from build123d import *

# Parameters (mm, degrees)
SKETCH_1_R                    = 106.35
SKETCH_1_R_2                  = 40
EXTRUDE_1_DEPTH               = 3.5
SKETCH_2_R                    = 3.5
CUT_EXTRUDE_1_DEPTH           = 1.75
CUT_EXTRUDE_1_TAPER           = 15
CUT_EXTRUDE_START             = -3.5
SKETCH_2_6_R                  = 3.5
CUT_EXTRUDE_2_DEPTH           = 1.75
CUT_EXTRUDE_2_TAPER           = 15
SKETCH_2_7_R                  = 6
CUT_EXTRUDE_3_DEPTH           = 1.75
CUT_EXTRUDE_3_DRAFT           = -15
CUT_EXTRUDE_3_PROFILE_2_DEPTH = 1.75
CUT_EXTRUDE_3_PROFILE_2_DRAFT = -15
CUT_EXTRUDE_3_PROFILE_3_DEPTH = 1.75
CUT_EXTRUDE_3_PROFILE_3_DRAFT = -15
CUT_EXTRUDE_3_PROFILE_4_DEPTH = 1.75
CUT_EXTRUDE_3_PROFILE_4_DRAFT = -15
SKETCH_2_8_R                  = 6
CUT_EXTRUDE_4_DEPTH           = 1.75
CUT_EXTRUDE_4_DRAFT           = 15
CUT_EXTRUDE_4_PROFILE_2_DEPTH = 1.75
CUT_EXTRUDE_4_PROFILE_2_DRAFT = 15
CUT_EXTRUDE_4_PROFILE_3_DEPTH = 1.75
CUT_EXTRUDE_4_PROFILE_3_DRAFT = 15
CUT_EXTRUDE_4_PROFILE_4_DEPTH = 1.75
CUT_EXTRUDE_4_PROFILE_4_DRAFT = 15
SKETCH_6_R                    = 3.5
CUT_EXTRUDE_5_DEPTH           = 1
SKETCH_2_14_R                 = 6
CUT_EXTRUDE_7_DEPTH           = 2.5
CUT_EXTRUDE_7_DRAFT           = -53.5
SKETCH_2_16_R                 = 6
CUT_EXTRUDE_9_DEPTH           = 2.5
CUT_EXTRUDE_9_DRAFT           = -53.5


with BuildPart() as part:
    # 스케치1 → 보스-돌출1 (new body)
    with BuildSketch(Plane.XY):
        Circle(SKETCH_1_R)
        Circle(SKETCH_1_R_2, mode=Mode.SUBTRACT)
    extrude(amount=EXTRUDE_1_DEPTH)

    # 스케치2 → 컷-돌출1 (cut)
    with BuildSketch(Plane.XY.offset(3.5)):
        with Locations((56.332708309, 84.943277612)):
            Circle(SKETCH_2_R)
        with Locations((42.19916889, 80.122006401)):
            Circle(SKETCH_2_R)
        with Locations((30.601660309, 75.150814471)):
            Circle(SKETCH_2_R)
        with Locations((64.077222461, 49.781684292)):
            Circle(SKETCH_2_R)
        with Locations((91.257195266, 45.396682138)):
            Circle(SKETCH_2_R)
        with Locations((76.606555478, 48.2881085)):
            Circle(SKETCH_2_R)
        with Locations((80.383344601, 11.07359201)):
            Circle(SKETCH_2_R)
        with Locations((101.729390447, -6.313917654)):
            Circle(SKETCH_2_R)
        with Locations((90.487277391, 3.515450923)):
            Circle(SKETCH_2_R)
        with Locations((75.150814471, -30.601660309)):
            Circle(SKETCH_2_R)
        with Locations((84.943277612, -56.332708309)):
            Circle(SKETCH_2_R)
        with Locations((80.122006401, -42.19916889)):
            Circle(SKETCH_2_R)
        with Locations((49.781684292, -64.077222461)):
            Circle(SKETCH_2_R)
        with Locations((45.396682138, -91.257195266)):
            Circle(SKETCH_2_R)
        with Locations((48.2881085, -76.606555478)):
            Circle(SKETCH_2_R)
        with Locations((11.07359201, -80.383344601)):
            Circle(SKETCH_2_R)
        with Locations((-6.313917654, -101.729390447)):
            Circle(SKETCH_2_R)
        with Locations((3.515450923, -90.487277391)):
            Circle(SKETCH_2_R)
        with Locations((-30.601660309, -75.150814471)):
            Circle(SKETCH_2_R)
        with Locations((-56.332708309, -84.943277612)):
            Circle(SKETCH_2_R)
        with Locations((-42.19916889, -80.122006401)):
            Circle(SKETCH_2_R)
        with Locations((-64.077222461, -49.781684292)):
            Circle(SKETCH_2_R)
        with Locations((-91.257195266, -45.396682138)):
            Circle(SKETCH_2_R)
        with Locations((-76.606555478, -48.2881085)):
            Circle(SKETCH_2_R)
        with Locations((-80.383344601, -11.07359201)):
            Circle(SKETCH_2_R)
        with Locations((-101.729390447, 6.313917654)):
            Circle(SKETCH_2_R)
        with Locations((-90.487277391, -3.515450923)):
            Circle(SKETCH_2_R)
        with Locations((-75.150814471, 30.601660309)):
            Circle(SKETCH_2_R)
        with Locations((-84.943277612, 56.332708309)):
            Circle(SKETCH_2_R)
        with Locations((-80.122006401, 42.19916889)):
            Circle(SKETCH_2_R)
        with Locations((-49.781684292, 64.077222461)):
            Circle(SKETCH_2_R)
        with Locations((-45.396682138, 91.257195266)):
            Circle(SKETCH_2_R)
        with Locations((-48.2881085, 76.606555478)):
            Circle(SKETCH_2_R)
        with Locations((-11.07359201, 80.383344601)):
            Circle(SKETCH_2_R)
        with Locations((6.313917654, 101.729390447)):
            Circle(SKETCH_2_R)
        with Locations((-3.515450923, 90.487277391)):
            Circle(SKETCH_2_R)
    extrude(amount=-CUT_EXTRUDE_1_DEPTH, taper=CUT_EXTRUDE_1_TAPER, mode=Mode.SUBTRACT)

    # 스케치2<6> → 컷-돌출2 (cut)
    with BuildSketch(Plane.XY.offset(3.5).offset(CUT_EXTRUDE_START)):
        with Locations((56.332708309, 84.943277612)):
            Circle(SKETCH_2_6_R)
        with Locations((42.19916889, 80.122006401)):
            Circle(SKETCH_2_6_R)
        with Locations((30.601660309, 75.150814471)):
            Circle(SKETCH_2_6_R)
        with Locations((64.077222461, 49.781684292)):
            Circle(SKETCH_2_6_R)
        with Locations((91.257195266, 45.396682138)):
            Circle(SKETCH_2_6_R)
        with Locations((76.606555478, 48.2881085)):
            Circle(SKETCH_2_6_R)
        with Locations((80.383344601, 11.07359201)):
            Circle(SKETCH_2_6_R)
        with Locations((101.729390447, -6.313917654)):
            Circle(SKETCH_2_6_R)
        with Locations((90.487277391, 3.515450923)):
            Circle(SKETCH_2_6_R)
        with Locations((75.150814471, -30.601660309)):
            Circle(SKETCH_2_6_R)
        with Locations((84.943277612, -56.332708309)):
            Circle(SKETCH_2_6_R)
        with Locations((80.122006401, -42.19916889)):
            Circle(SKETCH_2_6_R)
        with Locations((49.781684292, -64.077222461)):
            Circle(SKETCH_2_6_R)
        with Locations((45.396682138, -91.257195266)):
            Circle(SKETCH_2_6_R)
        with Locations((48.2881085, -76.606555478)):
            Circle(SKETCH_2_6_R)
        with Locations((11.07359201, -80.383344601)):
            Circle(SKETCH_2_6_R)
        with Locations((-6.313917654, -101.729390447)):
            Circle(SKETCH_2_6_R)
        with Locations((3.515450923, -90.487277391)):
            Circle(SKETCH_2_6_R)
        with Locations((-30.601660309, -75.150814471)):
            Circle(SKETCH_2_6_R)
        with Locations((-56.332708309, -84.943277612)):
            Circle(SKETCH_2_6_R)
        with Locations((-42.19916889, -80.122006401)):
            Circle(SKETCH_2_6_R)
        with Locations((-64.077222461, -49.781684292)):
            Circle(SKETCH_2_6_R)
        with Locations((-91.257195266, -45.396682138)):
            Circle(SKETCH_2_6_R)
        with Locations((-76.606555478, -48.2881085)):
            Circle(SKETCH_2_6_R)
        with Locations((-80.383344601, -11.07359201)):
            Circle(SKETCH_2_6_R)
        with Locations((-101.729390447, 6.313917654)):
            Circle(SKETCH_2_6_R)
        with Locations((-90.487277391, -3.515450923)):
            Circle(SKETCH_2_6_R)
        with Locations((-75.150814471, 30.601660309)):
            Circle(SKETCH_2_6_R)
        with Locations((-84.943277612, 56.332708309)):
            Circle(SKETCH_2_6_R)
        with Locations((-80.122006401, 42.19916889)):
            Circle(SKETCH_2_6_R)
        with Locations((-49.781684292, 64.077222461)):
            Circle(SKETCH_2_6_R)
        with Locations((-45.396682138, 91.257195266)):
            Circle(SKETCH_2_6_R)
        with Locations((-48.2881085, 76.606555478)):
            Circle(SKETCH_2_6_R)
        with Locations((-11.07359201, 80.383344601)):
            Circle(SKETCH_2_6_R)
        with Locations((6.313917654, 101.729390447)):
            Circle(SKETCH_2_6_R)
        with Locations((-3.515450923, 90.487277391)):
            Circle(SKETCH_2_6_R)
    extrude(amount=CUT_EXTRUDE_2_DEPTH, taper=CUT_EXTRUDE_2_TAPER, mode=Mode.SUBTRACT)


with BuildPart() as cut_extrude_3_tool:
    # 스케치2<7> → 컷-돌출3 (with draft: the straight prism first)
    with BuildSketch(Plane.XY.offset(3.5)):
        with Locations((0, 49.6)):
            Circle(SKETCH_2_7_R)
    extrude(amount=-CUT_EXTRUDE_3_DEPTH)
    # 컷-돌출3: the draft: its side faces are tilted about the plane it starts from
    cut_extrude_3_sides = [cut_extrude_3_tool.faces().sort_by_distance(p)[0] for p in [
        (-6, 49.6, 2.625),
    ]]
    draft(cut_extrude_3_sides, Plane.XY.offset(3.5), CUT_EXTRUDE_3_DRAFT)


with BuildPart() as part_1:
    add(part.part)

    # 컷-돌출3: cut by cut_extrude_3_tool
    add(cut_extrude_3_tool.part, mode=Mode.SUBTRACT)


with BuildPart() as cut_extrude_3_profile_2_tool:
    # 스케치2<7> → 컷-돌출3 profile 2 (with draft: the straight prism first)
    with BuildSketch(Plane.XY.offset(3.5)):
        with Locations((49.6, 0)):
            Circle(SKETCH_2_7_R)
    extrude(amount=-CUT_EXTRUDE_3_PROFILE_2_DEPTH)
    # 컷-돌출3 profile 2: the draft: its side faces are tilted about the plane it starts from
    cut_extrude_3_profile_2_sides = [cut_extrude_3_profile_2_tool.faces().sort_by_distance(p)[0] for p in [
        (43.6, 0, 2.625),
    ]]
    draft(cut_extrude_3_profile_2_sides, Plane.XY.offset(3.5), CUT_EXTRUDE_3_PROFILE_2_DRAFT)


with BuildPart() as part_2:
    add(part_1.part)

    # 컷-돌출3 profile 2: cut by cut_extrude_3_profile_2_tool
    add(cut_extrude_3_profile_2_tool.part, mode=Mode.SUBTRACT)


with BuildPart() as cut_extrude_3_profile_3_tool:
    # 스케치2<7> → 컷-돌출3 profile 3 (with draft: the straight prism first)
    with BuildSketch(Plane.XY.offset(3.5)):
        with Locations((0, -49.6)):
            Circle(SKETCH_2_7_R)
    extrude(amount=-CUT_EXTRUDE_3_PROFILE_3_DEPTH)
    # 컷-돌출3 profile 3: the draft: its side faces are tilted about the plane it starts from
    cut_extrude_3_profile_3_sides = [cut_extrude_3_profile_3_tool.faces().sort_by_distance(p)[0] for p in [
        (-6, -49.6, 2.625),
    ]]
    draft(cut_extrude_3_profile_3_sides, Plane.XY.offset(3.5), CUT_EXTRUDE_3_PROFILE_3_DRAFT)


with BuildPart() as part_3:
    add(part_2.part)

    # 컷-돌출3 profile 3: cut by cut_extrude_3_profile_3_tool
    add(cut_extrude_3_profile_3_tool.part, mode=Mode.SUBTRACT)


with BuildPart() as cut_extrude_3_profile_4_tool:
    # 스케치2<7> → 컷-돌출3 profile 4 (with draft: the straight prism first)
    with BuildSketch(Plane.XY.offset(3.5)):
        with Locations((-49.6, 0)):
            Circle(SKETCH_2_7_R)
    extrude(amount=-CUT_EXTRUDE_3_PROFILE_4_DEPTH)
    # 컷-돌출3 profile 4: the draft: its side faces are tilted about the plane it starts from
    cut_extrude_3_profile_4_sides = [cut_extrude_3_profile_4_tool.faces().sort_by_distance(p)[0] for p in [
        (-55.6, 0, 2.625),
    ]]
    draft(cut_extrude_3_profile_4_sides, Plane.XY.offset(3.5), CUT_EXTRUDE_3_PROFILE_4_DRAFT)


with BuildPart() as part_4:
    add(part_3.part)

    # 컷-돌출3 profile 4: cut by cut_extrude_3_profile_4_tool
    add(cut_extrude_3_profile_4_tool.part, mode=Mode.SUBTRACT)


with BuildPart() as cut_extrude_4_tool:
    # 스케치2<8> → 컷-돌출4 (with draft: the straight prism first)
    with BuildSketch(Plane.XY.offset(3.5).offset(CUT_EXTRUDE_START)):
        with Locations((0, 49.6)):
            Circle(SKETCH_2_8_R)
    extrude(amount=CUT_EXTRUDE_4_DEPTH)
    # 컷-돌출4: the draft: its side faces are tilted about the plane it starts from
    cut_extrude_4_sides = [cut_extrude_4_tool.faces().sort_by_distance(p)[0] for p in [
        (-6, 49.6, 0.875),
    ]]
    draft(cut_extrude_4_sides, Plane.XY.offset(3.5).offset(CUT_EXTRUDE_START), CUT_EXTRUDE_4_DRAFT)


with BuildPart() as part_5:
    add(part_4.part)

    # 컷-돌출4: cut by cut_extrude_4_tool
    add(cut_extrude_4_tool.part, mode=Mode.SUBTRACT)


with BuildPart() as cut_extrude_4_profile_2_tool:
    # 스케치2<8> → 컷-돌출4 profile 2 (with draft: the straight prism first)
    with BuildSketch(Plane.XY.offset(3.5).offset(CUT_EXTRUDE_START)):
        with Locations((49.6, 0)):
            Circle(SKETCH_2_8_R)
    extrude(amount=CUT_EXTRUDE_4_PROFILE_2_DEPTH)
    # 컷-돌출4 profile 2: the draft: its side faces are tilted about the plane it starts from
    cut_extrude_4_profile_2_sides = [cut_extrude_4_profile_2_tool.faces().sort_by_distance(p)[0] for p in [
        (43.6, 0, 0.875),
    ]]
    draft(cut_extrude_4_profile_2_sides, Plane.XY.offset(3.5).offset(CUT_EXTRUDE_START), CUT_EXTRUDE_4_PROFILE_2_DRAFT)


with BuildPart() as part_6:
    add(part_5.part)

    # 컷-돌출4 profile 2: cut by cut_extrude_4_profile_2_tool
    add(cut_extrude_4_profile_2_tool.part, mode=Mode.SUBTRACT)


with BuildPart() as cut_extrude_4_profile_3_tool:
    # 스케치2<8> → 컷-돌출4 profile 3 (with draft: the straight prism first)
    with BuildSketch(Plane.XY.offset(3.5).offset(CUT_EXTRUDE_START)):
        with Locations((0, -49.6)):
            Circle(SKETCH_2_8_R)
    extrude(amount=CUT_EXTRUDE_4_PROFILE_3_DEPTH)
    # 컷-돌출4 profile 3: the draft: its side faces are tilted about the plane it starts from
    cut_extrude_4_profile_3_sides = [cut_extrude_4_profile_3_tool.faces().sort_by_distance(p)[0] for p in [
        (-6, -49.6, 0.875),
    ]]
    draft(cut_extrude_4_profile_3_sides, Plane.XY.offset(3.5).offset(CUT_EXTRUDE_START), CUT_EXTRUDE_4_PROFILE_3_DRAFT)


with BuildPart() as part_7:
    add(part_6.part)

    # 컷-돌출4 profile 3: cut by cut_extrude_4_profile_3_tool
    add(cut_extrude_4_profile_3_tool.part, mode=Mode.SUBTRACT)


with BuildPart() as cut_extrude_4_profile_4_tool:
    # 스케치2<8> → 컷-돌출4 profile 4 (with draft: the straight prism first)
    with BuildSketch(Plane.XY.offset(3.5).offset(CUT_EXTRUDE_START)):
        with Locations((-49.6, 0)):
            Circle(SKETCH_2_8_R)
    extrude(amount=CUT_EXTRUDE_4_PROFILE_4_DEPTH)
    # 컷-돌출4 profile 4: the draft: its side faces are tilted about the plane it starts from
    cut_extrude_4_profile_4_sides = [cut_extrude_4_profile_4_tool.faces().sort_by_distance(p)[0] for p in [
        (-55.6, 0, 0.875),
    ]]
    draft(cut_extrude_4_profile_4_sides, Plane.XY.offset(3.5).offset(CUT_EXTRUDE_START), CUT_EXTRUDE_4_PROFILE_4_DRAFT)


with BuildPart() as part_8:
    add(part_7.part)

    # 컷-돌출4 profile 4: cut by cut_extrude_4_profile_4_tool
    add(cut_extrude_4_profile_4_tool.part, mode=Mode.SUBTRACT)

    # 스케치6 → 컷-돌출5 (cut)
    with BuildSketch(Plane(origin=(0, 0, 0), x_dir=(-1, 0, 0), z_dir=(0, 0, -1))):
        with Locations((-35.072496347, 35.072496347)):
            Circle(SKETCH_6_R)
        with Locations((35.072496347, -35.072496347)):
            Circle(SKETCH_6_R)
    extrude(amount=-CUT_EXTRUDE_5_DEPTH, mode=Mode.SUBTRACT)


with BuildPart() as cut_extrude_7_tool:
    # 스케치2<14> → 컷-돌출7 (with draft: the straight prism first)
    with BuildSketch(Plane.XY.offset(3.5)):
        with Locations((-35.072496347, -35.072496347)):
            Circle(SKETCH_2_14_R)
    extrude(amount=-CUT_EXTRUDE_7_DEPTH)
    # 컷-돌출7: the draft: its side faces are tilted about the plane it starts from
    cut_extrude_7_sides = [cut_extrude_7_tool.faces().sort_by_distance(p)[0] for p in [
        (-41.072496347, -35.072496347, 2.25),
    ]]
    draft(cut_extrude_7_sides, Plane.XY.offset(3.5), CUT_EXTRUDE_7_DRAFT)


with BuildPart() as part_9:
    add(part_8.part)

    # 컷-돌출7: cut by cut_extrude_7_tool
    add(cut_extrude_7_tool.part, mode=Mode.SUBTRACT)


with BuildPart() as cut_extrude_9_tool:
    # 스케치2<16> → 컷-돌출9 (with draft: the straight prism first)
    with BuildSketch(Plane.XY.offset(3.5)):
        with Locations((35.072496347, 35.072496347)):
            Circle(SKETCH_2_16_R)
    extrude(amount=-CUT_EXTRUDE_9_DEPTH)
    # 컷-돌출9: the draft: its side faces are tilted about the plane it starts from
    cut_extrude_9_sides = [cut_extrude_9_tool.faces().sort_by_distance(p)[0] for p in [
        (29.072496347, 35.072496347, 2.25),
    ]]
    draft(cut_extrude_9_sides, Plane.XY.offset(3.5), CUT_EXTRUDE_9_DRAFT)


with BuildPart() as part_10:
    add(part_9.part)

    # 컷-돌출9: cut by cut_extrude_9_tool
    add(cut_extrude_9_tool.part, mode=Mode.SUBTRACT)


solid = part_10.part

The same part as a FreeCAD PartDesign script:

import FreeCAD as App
import Part
import Sketcher

V = App.Vector
Q = App.Units.Quantity


def faces_at(feature, points):
    """Names of the faces that lie closest to the given points."""
    faces = feature.Shape.Faces
    near = lambda p: min(range(len(faces)), key=lambda i: faces[i].distToShape(Part.Vertex(*p))[0])
    return sorted({f"Face{near(p) + 1}" for p in points})

doc = App.newDocument("Part")
body = doc.addObject("PartDesign::Body", "Body")

sketch1 = doc.addObject("Sketcher::SketchObject", "Sketch")
body.addObject(sketch1)
sketch1.AttachmentSupport = (doc.XY_Plane, [""])
sketch1.MapMode = "FlatFace"
sketch1.addGeometry([
    Part.Circle(V(0, 0, 0), V(0, 0, 1), 106),
    Part.Circle(V(0, 0, 0), V(0, 0, 1), 40),
], False)
sketch1.addConstraint([
    Sketcher.Constraint("Coincident", 0, 3, -1, 1),
    Sketcher.Constraint("Coincident", 1, 3, -1, 1),
    Sketcher.Constraint("Diameter", 1, Q("80 mm")),
    Sketcher.Constraint("Diameter", 0, Q("212.7 mm")),
])
pad1 = doc.addObject("PartDesign::Pad", "Pad")
body.addObject(pad1)
pad1.Profile = sketch1
pad1.Length = 3.5

sketch2 = doc.addObject("Sketcher::SketchObject", "Sketch001")
body.addObject(sketch2)
sketch2.AttachmentSupport = (doc.XY_Plane, [""])
sketch2.MapMode = "FlatFace"
sketch2.AttachmentOffset = App.Placement(V(0, 0, 3.5), App.Rotation())
sketch2.addGeometry([
    Part.Circle(V(56.3, 84.9, 0), V(0, 0, 1), 3.5),
    Part.Circle(V(42.2, 80.1, 0), V(0, 0, 1), 3.5),
    Part.Circle(V(30.6, 75.2, 0), V(0, 0, 1), 3.5),
    Part.Circle(V(64.1, 49.8, 0), V(0, 0, 1), 3.5),
    Part.Circle(V(91.3, 45.4, 0), V(0, 0, 1), 3.5),
    Part.Circle(V(76.6, 48.3, 0), V(0, 0, 1), 3.5),
    Part.Circle(V(80.4, 11.1, 0), V(0, 0, 1), 3.5),
    Part.Circle(V(101.7, -6.3, 0), V(0, 0, 1), 3.5),
    Part.Circle(V(90.5, 3.5, 0), V(0, 0, 1), 3.5),
    Part.Circle(V(75.2, -30.6, 0), V(0, 0, 1), 3.5),
    Part.Circle(V(84.9, -56.3, 0), V(0, 0, 1), 3.5),
    Part.Circle(V(80.1, -42.2, 0), V(0, 0, 1), 3.5),
    Part.Circle(V(49.8, -64.1, 0), V(0, 0, 1), 3.5),
    Part.Circle(V(45.4, -91.3, 0), V(0, 0, 1), 3.5),
    Part.Circle(V(48.3, -76.6, 0), V(0, 0, 1), 3.5),
    Part.Circle(V(11.1, -80.4, 0), V(0, 0, 1), 3.5),
    Part.Circle(V(-6.3, -101.7, 0), V(0, 0, 1), 3.5),
    Part.Circle(V(3.5, -90.5, 0), V(0, 0, 1), 3.5),
    Part.Circle(V(-30.6, -75.2, 0), V(0, 0, 1), 3.5),
    Part.Circle(V(-56.3, -84.9, 0), V(0, 0, 1), 3.5),
    Part.Circle(V(-42.2, -80.1, 0), V(0, 0, 1), 3.5),
    Part.Circle(V(-64.1, -49.8, 0), V(0, 0, 1), 3.5),
    Part.Circle(V(-91.3, -45.4, 0), V(0, 0, 1), 3.5),
    Part.Circle(V(-76.6, -48.3, 0), V(0, 0, 1), 3.5),
    Part.Circle(V(-80.4, -11.1, 0), V(0, 0, 1), 3.5),
    Part.Circle(V(-101.7, 6.3, 0), V(0, 0, 1), 3.5),
    Part.Circle(V(-90.5, -3.5, 0), V(0, 0, 1), 3.5),
    Part.Circle(V(-75.2, 30.6, 0), V(0, 0, 1), 3.5),
    Part.Circle(V(-84.9, 56.3, 0), V(0, 0, 1), 3.5),
    Part.Circle(V(-80.1, 42.2, 0), V(0, 0, 1), 3.5),
    Part.Circle(V(-49.8, 64.1, 0), V(0, 0, 1), 3.5),
    Part.Circle(V(-45.4, 91.3, 0), V(0, 0, 1), 3.5),
    Part.Circle(V(-48.3, 76.6, 0), V(0, 0, 1), 3.5),
    Part.Circle(V(-11.1, 80.4, 0), V(0, 0, 1), 3.5),
    Part.Circle(V(6.3, 101.7, 0), V(0, 0, 1), 3.5),
    Part.Circle(V(-3.5, 90.5, 0), V(0, 0, 1), 3.5),
], False)
sketch2.addConstraint([
    Sketcher.Constraint("Equal", 0, 1),
    Sketcher.Constraint("Equal", 1, 2),
    Sketcher.Constraint("Equal", 2, 3),
    Sketcher.Constraint("Equal", 3, 4),
    Sketcher.Constraint("Equal", 4, 5),
    Sketcher.Constraint("Equal", 5, 6),
    Sketcher.Constraint("Equal", 6, 7),
    Sketcher.Constraint("Equal", 7, 8),
    Sketcher.Constraint("Equal", 8, 9),
    Sketcher.Constraint("Equal", 9, 10),
    Sketcher.Constraint("Equal", 10, 11),
    Sketcher.Constraint("Equal", 11, 12),
    Sketcher.Constraint("Equal", 12, 13),
    Sketcher.Constraint("Equal", 13, 14),
    Sketcher.Constraint("Equal", 14, 15),
    Sketcher.Constraint("Equal", 15, 16),
    Sketcher.Constraint("Equal", 16, 17),
    Sketcher.Constraint("Equal", 17, 18),
    Sketcher.Constraint("Equal", 18, 19),
    Sketcher.Constraint("Equal", 19, 20),
    Sketcher.Constraint("Equal", 20, 21),
    Sketcher.Constraint("Equal", 21, 22),
    Sketcher.Constraint("Equal", 22, 23),
    Sketcher.Constraint("Equal", 23, 24),
    Sketcher.Constraint("Equal", 24, 25),
    Sketcher.Constraint("Equal", 25, 26),
    Sketcher.Constraint("Equal", 26, 27),
    Sketcher.Constraint("Equal", 27, 28),
    Sketcher.Constraint("Equal", 28, 29),
    Sketcher.Constraint("Equal", 29, 30),
    Sketcher.Constraint("Equal", 30, 31),
    Sketcher.Constraint("Equal", 31, 32),
    Sketcher.Constraint("Equal", 32, 33),
    Sketcher.Constraint("Equal", 33, 34),
    Sketcher.Constraint("Equal", 34, 35),
    Sketcher.Constraint("Symmetric", 2, 3, 18, 3, -1, 1),
    Sketcher.Constraint("Symmetric", 0, 3, 19, 3, -1, 1),
    Sketcher.Constraint("Symmetric", 1, 3, 20, 3, -1, 1),
    Sketcher.Constraint("Symmetric", 3, 3, 21, 3, -1, 1),
    Sketcher.Constraint("Symmetric", 4, 3, 22, 3, -1, 1),
    Sketcher.Constraint("Symmetric", 5, 3, 23, 3, -1, 1),
    Sketcher.Constraint("Symmetric", 6, 3, 24, 3, -1, 1),
    Sketcher.Constraint("Symmetric", 7, 3, 25, 3, -1, 1),
    Sketcher.Constraint("Symmetric", 8, 3, 26, 3, -1, 1),
    Sketcher.Constraint("Symmetric", 9, 3, 27, 3, -1, 1),
    Sketcher.Constraint("Symmetric", 10, 3, 28, 3, -1, 1),
    Sketcher.Constraint("Symmetric", 11, 3, 29, 3, -1, 1),
    Sketcher.Constraint("Symmetric", 12, 3, 30, 3, -1, 1),
    Sketcher.Constraint("Symmetric", 13, 3, 31, 3, -1, 1),
    Sketcher.Constraint("Symmetric", 14, 3, 32, 3, -1, 1),
    Sketcher.Constraint("Symmetric", 15, 3, 33, 3, -1, 1),
    Sketcher.Constraint("Symmetric", 16, 3, 34, 3, -1, 1),
    Sketcher.Constraint("Symmetric", 17, 3, 35, 3, -1, 1),
    Sketcher.Constraint("Diameter", 0, Q("7 mm")),
    Sketcher.Constraint("DistanceX", 10, 3, 8, 3, Q("5.544 mm")),
    Sketcher.Constraint("DistanceY", 17, 3, 19, 3, Q("5.544 mm")),
    Sketcher.Constraint("DistanceY", 7, 3, 4, 3, Q("51.7106 mm")),
    Sketcher.Constraint("DistanceY", 7, 3, 3, 3, Q("56.095602 mm")),
    Sketcher.Constraint("DistanceY", 10, 3, 6, 3, Q("67.4063 mm")),
    Sketcher.Constraint("DistanceX", 16, 3, 13, 3, Q("51.7106 mm")),
    Sketcher.Constraint("DistanceX", 16, 3, 12, 3, Q("56.095602 mm")),
    Sketcher.Constraint("DistanceX", 19, 3, 15, 3, Q("67.4063 mm")),
    Sketcher.Constraint("DistanceX", -1, 1, 0, 3, Q("56.332708 mm")),
    Sketcher.Constraint("DistanceX", -1, 1, 1, 3, Q("42.199169 mm")),
    Sketcher.Constraint("DistanceX", -1, 1, 2, 3, Q("30.60166 mm")),
    Sketcher.Constraint("DistanceY", -1, 1, 5, 3, Q("48.288108 mm")),
    Sketcher.Constraint("DistanceX", -1, 1, 7, 3, Q("101.72939 mm")),
    Sketcher.Constraint("DistanceY", -1, 1, 8, 3, Q("3.515451 mm")),
    Sketcher.Constraint("DistanceY", 9, 3, -1, 1, Q("30.60166 mm")),
    Sketcher.Constraint("DistanceY", 10, 3, -1, 1, Q("56.332708 mm")),
    Sketcher.Constraint("DistanceY", 11, 3, -1, 1, Q("42.199169 mm")),
    Sketcher.Constraint("DistanceX", -1, 1, 14, 3, Q("48.288108 mm")),
    Sketcher.Constraint("DistanceY", 16, 3, -1, 1, Q("101.72939 mm")),
    Sketcher.Constraint("DistanceX", -1, 1, 17, 3, Q("3.515451 mm")),
    Sketcher.Constraint("DistanceY", 1, 3, 0, 3, Q("4.821271 mm")),
    Sketcher.Constraint("DistanceY", 2, 3, 1, 3, Q("4.971192 mm")),
    Sketcher.Constraint("DistanceY", 3, 3, 2, 3, Q("25.36913 mm")),
    Sketcher.Constraint("DistanceX", 5, 3, 4, 3, Q("14.65064 mm")),
    Sketcher.Constraint("DistanceY", 5, 3, 0, 3, Q("36.655169 mm")),
    Sketcher.Constraint("DistanceX", 6, 3, 4, 3, Q("10.873851 mm")),
    Sketcher.Constraint("DistanceX", 5, 3, 8, 3, Q("13.880722 mm")),
    Sketcher.Constraint("DistanceX", 9, 3, 6, 3, Q("5.23253 mm")),
    Sketcher.Constraint("DistanceX", 9, 3, 11, 3, Q("4.971192 mm")),
    Sketcher.Constraint("DistanceX", 12, 3, 9, 3, Q("25.36913 mm")),
    Sketcher.Constraint("DistanceX", 13, 3, 7, 3, Q("56.332708 mm")),
    Sketcher.Constraint("DistanceY", 13, 3, 14, 3, Q("14.65064 mm")),
    Sketcher.Constraint("DistanceY", 13, 3, 15, 3, Q("10.873851 mm")),
    Sketcher.Constraint("DistanceY", 17, 3, 14, 3, Q("13.880722 mm")),
    Sketcher.Constraint("DistanceX", -1, 1, 3, 3, Q("64.077222 mm")),
    Sketcher.Constraint("DistanceY", 12, 3, -1, 1, Q("64.077222 mm")),
])
pocket1 = doc.addObject("PartDesign::Pocket", "Pocket")
body.addObject(pocket1)
pocket1.Profile = sketch2
pocket1.Length = 1.75
pocket1.TaperAngle = -15

sketch3 = doc.addObject("Sketcher::SketchObject", "Sketch002")
body.addObject(sketch3)
sketch3.AttachmentSupport = (doc.XY_Plane, [""])
sketch3.MapMode = "FlatFace"
sketch3.addGeometry([
    Part.Circle(V(56.3, 84.9, 0), V(0, 0, 1), 3.5),
    Part.Circle(V(42.2, 80.1, 0), V(0, 0, 1), 3.5),
    Part.Circle(V(30.6, 75.2, 0), V(0, 0, 1), 3.5),
    Part.Circle(V(64.1, 49.8, 0), V(0, 0, 1), 3.5),
    Part.Circle(V(91.3, 45.4, 0), V(0, 0, 1), 3.5),
    Part.Circle(V(76.6, 48.3, 0), V(0, 0, 1), 3.5),
    Part.Circle(V(80.4, 11.1, 0), V(0, 0, 1), 3.5),
    Part.Circle(V(101.7, -6.3, 0), V(0, 0, 1), 3.5),
    Part.Circle(V(90.5, 3.5, 0), V(0, 0, 1), 3.5),
    Part.Circle(V(75.2, -30.6, 0), V(0, 0, 1), 3.5),
    Part.Circle(V(84.9, -56.3, 0), V(0, 0, 1), 3.5),
    Part.Circle(V(80.1, -42.2, 0), V(0, 0, 1), 3.5),
    Part.Circle(V(49.8, -64.1, 0), V(0, 0, 1), 3.5),
    Part.Circle(V(45.4, -91.3, 0), V(0, 0, 1), 3.5),
    Part.Circle(V(48.3, -76.6, 0), V(0, 0, 1), 3.5),
    Part.Circle(V(11.1, -80.4, 0), V(0, 0, 1), 3.5),
    Part.Circle(V(-6.3, -101.7, 0), V(0, 0, 1), 3.5),
    Part.Circle(V(3.5, -90.5, 0), V(0, 0, 1), 3.5),
    Part.Circle(V(-30.6, -75.2, 0), V(0, 0, 1), 3.5),
    Part.Circle(V(-56.3, -84.9, 0), V(0, 0, 1), 3.5),
    Part.Circle(V(-42.2, -80.1, 0), V(0, 0, 1), 3.5),
    Part.Circle(V(-64.1, -49.8, 0), V(0, 0, 1), 3.5),
    Part.Circle(V(-91.3, -45.4, 0), V(0, 0, 1), 3.5),
    Part.Circle(V(-76.6, -48.3, 0), V(0, 0, 1), 3.5),
    Part.Circle(V(-80.4, -11.1, 0), V(0, 0, 1), 3.5),
    Part.Circle(V(-101.7, 6.3, 0), V(0, 0, 1), 3.5),
    Part.Circle(V(-90.5, -3.5, 0), V(0, 0, 1), 3.5),
    Part.Circle(V(-75.2, 30.6, 0), V(0, 0, 1), 3.5),
    Part.Circle(V(-84.9, 56.3, 0), V(0, 0, 1), 3.5),
    Part.Circle(V(-80.1, 42.2, 0), V(0, 0, 1), 3.5),
    Part.Circle(V(-49.8, 64.1, 0), V(0, 0, 1), 3.5),
    Part.Circle(V(-45.4, 91.3, 0), V(0, 0, 1), 3.5),
    Part.Circle(V(-48.3, 76.6, 0), V(0, 0, 1), 3.5),
    Part.Circle(V(-11.1, 80.4, 0), V(0, 0, 1), 3.5),
    Part.Circle(V(6.3, 101.7, 0), V(0, 0, 1), 3.5),
    Part.Circle(V(-3.5, 90.5, 0), V(0, 0, 1), 3.5),
], False)
sketch3.addConstraint([
    Sketcher.Constraint("Equal", 0, 1),
    Sketcher.Constraint("Equal", 1, 2),
    Sketcher.Constraint("Equal", 2, 3),
    Sketcher.Constraint("Equal", 3, 4),
    Sketcher.Constraint("Equal", 4, 5),
    Sketcher.Constraint("Equal", 5, 6),
    Sketcher.Constraint("Equal", 6, 7),
    Sketcher.Constraint("Equal", 7, 8),
    Sketcher.Constraint("Equal", 8, 9),
    Sketcher.Constraint("Equal", 9, 10),
    Sketcher.Constraint("Equal", 10, 11),
    Sketcher.Constraint("Equal", 11, 12),
    Sketcher.Constraint("Equal", 12, 13),
    Sketcher.Constraint("Equal", 13, 14),
    Sketcher.Constraint("Equal", 14, 15),
    Sketcher.Constraint("Equal", 15, 16),
    Sketcher.Constraint("Equal", 16, 17),
    Sketcher.Constraint("Equal", 17, 18),
    Sketcher.Constraint("Equal", 18, 19),
    Sketcher.Constraint("Equal", 19, 20),
    Sketcher.Constraint("Equal", 20, 21),
    Sketcher.Constraint("Equal", 21, 22),
    Sketcher.Constraint("Equal", 22, 23),
    Sketcher.Constraint("Equal", 23, 24),
    Sketcher.Constraint("Equal", 24, 25),
    Sketcher.Constraint("Equal", 25, 26),
    Sketcher.Constraint("Equal", 26, 27),
    Sketcher.Constraint("Equal", 27, 28),
    Sketcher.Constraint("Equal", 28, 29),
    Sketcher.Constraint("Equal", 29, 30),
    Sketcher.Constraint("Equal", 30, 31),
    Sketcher.Constraint("Equal", 31, 32),
    Sketcher.Constraint("Equal", 32, 33),
    Sketcher.Constraint("Equal", 33, 34),
    Sketcher.Constraint("Equal", 34, 35),
    Sketcher.Constraint("Symmetric", 2, 3, 18, 3, -1, 1),
    Sketcher.Constraint("Symmetric", 0, 3, 19, 3, -1, 1),
    Sketcher.Constraint("Symmetric", 1, 3, 20, 3, -1, 1),
    Sketcher.Constraint("Symmetric", 3, 3, 21, 3, -1, 1),
    Sketcher.Constraint("Symmetric", 4, 3, 22, 3, -1, 1),
    Sketcher.Constraint("Symmetric", 5, 3, 23, 3, -1, 1),
    Sketcher.Constraint("Symmetric", 6, 3, 24, 3, -1, 1),
    Sketcher.Constraint("Symmetric", 7, 3, 25, 3, -1, 1),
    Sketcher.Constraint("Symmetric", 8, 3, 26, 3, -1, 1),
    Sketcher.Constraint("Symmetric", 9, 3, 27, 3, -1, 1),
    Sketcher.Constraint("Symmetric", 10, 3, 28, 3, -1, 1),
    Sketcher.Constraint("Symmetric", 11, 3, 29, 3, -1, 1),
    Sketcher.Constraint("Symmetric", 12, 3, 30, 3, -1, 1),
    Sketcher.Constraint("Symmetric", 13, 3, 31, 3, -1, 1),
    Sketcher.Constraint("Symmetric", 14, 3, 32, 3, -1, 1),
    Sketcher.Constraint("Symmetric", 15, 3, 33, 3, -1, 1),
    Sketcher.Constraint("Symmetric", 16, 3, 34, 3, -1, 1),
    Sketcher.Constraint("Symmetric", 17, 3, 35, 3, -1, 1),
    Sketcher.Constraint("Diameter", 0, Q("7 mm")),
    Sketcher.Constraint("DistanceX", 10, 3, 8, 3, Q("5.544 mm")),
    Sketcher.Constraint("DistanceY", 17, 3, 19, 3, Q("5.544 mm")),
    Sketcher.Constraint("DistanceY", 7, 3, 4, 3, Q("51.7106 mm")),
    Sketcher.Constraint("DistanceY", 7, 3, 3, 3, Q("56.095602 mm")),
    Sketcher.Constraint("DistanceY", 10, 3, 6, 3, Q("67.4063 mm")),
    Sketcher.Constraint("DistanceX", 16, 3, 13, 3, Q("51.7106 mm")),
    Sketcher.Constraint("DistanceX", 16, 3, 12, 3, Q("56.095602 mm")),
    Sketcher.Constraint("DistanceX", 19, 3, 15, 3, Q("67.4063 mm")),
    Sketcher.Constraint("DistanceX", -1, 1, 0, 3, Q("56.332708 mm")),
    Sketcher.Constraint("DistanceX", -1, 1, 1, 3, Q("42.199169 mm")),
    Sketcher.Constraint("DistanceX", -1, 1, 2, 3, Q("30.60166 mm")),
    Sketcher.Constraint("DistanceY", -1, 1, 5, 3, Q("48.288108 mm")),
    Sketcher.Constraint("DistanceX", -1, 1, 7, 3, Q("101.72939 mm")),
    Sketcher.Constraint("DistanceY", -1, 1, 8, 3, Q("3.515451 mm")),
    Sketcher.Constraint("DistanceY", 9, 3, -1, 1, Q("30.60166 mm")),
    Sketcher.Constraint("DistanceY", 10, 3, -1, 1, Q("56.332708 mm")),
    Sketcher.Constraint("DistanceY", 11, 3, -1, 1, Q("42.199169 mm")),
    Sketcher.Constraint("DistanceX", -1, 1, 14, 3, Q("48.288108 mm")),
    Sketcher.Constraint("DistanceY", 16, 3, -1, 1, Q("101.72939 mm")),
    Sketcher.Constraint("DistanceX", -1, 1, 17, 3, Q("3.515451 mm")),
    Sketcher.Constraint("DistanceY", 1, 3, 0, 3, Q("4.821271 mm")),
    Sketcher.Constraint("DistanceY", 2, 3, 1, 3, Q("4.971192 mm")),
    Sketcher.Constraint("DistanceY", 3, 3, 2, 3, Q("25.36913 mm")),
    Sketcher.Constraint("DistanceX", 5, 3, 4, 3, Q("14.65064 mm")),
    Sketcher.Constraint("DistanceY", 5, 3, 0, 3, Q("36.655169 mm")),
    Sketcher.Constraint("DistanceX", 6, 3, 4, 3, Q("10.873851 mm")),
    Sketcher.Constraint("DistanceX", 5, 3, 8, 3, Q("13.880722 mm")),
    Sketcher.Constraint("DistanceX", 9, 3, 6, 3, Q("5.23253 mm")),
    Sketcher.Constraint("DistanceX", 9, 3, 11, 3, Q("4.971192 mm")),
    Sketcher.Constraint("DistanceX", 12, 3, 9, 3, Q("25.36913 mm")),
    Sketcher.Constraint("DistanceX", 13, 3, 7, 3, Q("56.332708 mm")),
    Sketcher.Constraint("DistanceY", 13, 3, 14, 3, Q("14.65064 mm")),
    Sketcher.Constraint("DistanceY", 13, 3, 15, 3, Q("10.873851 mm")),
    Sketcher.Constraint("DistanceY", 17, 3, 14, 3, Q("13.880722 mm")),
    Sketcher.Constraint("DistanceX", -1, 1, 3, 3, Q("64.077222 mm")),
    Sketcher.Constraint("DistanceY", 12, 3, -1, 1, Q("64.077222 mm")),
])
pocket2 = doc.addObject("PartDesign::Pocket", "Pocket001")
body.addObject(pocket2)
pocket2.Profile = sketch3
pocket2.Length = 1.75
pocket2.Reversed = True
pocket2.TaperAngle = -15
body2 = doc.addObject("PartDesign::Body", "Body001")

sketch4 = doc.addObject("Sketcher::SketchObject", "Sketch003")
body2.addObject(sketch4)
sketch4.AttachmentSupport = (doc.getObject("XY_Plane001"), [""])
sketch4.MapMode = "FlatFace"
sketch4.AttachmentOffset = App.Placement(V(0, 0, 3.5), App.Rotation())
sketch4.addGeometry(Part.Circle(V(0, 50, 0), V(0, 0, 1), 6), False)
sketch4.addConstraint([
    Sketcher.Constraint("PointOnObject", 0, 3, -2),
    Sketcher.Constraint("Diameter", 0, Q("12 mm")),
    Sketcher.Constraint("DistanceY", -1, 1, 0, 3, Q("49.6 mm")),
])
pad2 = doc.addObject("PartDesign::Pad", "Pad001")
body2.addObject(pad2)
pad2.Profile = sketch4
pad2.Length = 1.75
pad2.Reversed = True
doc.recompute()

datumplane = doc.addObject("PartDesign::Plane", "DatumPlane")
body2.addObject(datumplane)
datumplane.AttachmentSupport = (doc.getObject("XY_Plane001"), [""])
datumplane.MapMode = "FlatFace"
datumplane.AttachmentOffset = App.Placement(V(0, 0, 3.5), App.Rotation())
draft = doc.addObject("PartDesign::Draft", "Draft")
body2.addObject(draft)
draft.Base = (pad2, faces_at(pad2, [(-6, 49.6, 2.625)]))
draft.NeutralPlane = (datumplane, [""])
draft.Angle = 15
draft.Reversed = True
doc.recompute()

boolean = doc.addObject("PartDesign::Boolean", "Boolean")
body.addObject(boolean)
boolean.Type = "Cut"
boolean.addObjects([body2])
body3 = doc.addObject("PartDesign::Body", "Body002")

sketch5 = doc.addObject("Sketcher::SketchObject", "Sketch004")
body3.addObject(sketch5)
sketch5.AttachmentSupport = (doc.getObject("XY_Plane002"), [""])
sketch5.MapMode = "FlatFace"
sketch5.AttachmentOffset = App.Placement(V(0, 0, 3.5), App.Rotation())
sketch5.addGeometry(Part.Circle(V(50, 0, 0), V(0, 0, 1), 6), False)
sketch5.addConstraint([
    Sketcher.Constraint("PointOnObject", 0, 3, -1),
    Sketcher.Constraint("Diameter", 0, Q("12 mm")),
    Sketcher.Constraint("DistanceX", -1, 1, 0, 3, Q("49.6 mm")),
])
pad3 = doc.addObject("PartDesign::Pad", "Pad002")
body3.addObject(pad3)
pad3.Profile = sketch5
pad3.Length = 1.75
pad3.Reversed = True
doc.recompute()

datumplane2 = doc.addObject("PartDesign::Plane", "DatumPlane001")
body3.addObject(datumplane2)
datumplane2.AttachmentSupport = (doc.getObject("XY_Plane002"), [""])
datumplane2.MapMode = "FlatFace"
datumplane2.AttachmentOffset = App.Placement(V(0, 0, 3.5), App.Rotation())
draft2 = doc.addObject("PartDesign::Draft", "Draft001")
body3.addObject(draft2)
draft2.Base = (pad3, faces_at(pad3, [(43.6, 0, 2.625)]))
draft2.NeutralPlane = (datumplane2, [""])
draft2.Angle = 15
draft2.Reversed = True
doc.recompute()

boolean2 = doc.addObject("PartDesign::Boolean", "Boolean001")
body.addObject(boolean2)
boolean2.Type = "Cut"
boolean2.addObjects([body3])
body4 = doc.addObject("PartDesign::Body", "Body003")

sketch6 = doc.addObject("Sketcher::SketchObject", "Sketch005")
body4.addObject(sketch6)
sketch6.AttachmentSupport = (doc.getObject("XY_Plane003"), [""])
sketch6.MapMode = "FlatFace"
sketch6.AttachmentOffset = App.Placement(V(0, 0, 3.5), App.Rotation())
sketch6.addGeometry(Part.Circle(V(0, -50, 0), V(0, 0, 1), 6), False)
sketch6.addConstraint([
    Sketcher.Constraint("PointOnObject", 0, 3, -2),
    Sketcher.Constraint("Diameter", 0, Q("12 mm")),
    Sketcher.Constraint("DistanceY", 0, 3, -1, 1, Q("49.6 mm")),
])
pad4 = doc.addObject("PartDesign::Pad", "Pad003")
body4.addObject(pad4)
pad4.Profile = sketch6
pad4.Length = 1.75
pad4.Reversed = True
doc.recompute()

datumplane3 = doc.addObject("PartDesign::Plane", "DatumPlane002")
body4.addObject(datumplane3)
datumplane3.AttachmentSupport = (doc.getObject("XY_Plane003"), [""])
datumplane3.MapMode = "FlatFace"
datumplane3.AttachmentOffset = App.Placement(V(0, 0, 3.5), App.Rotation())
draft3 = doc.addObject("PartDesign::Draft", "Draft002")
body4.addObject(draft3)
draft3.Base = (pad4, faces_at(pad4, [(-6, -49.6, 2.625)]))
draft3.NeutralPlane = (datumplane3, [""])
draft3.Angle = 15
draft3.Reversed = True
doc.recompute()

boolean3 = doc.addObject("PartDesign::Boolean", "Boolean002")
body.addObject(boolean3)
boolean3.Type = "Cut"
boolean3.addObjects([body4])
body5 = doc.addObject("PartDesign::Body", "Body004")

sketch7 = doc.addObject("Sketcher::SketchObject", "Sketch006")
body5.addObject(sketch7)
sketch7.AttachmentSupport = (doc.getObject("XY_Plane004"), [""])
sketch7.MapMode = "FlatFace"
sketch7.AttachmentOffset = App.Placement(V(0, 0, 3.5), App.Rotation())
sketch7.addGeometry(Part.Circle(V(-50, 0, 0), V(0, 0, 1), 6), False)
sketch7.addConstraint([
    Sketcher.Constraint("PointOnObject", 0, 3, -1),
    Sketcher.Constraint("Diameter", 0, Q("12 mm")),
    Sketcher.Constraint("DistanceX", 0, 3, -1, 1, Q("49.6 mm")),
])
pad5 = doc.addObject("PartDesign::Pad", "Pad004")
body5.addObject(pad5)
pad5.Profile = sketch7
pad5.Length = 1.75
pad5.Reversed = True
doc.recompute()

datumplane4 = doc.addObject("PartDesign::Plane", "DatumPlane003")
body5.addObject(datumplane4)
datumplane4.AttachmentSupport = (doc.getObject("XY_Plane004"), [""])
datumplane4.MapMode = "FlatFace"
datumplane4.AttachmentOffset = App.Placement(V(0, 0, 3.5), App.Rotation())
draft4 = doc.addObject("PartDesign::Draft", "Draft003")
body5.addObject(draft4)
draft4.Base = (pad5, faces_at(pad5, [(-55.6, 0, 2.625)]))
draft4.NeutralPlane = (datumplane4, [""])
draft4.Angle = 15
draft4.Reversed = True
doc.recompute()

boolean4 = doc.addObject("PartDesign::Boolean", "Boolean003")
body.addObject(boolean4)
boolean4.Type = "Cut"
boolean4.addObjects([body5])
body6 = doc.addObject("PartDesign::Body", "Body005")

sketch8 = doc.addObject("Sketcher::SketchObject", "Sketch007")
body6.addObject(sketch8)
sketch8.AttachmentSupport = (doc.getObject("XY_Plane005"), [""])
sketch8.MapMode = "FlatFace"
sketch8.addGeometry(Part.Circle(V(0, 50, 0), V(0, 0, 1), 6), False)
sketch8.addConstraint([
    Sketcher.Constraint("PointOnObject", 0, 3, -2),
    Sketcher.Constraint("Diameter", 0, Q("12 mm")),
    Sketcher.Constraint("DistanceY", -1, 1, 0, 3, Q("49.6 mm")),
])
pad6 = doc.addObject("PartDesign::Pad", "Pad005")
body6.addObject(pad6)
pad6.Profile = sketch8
pad6.Length = 1.75
doc.recompute()

draft5 = doc.addObject("PartDesign::Draft", "Draft004")
body6.addObject(draft5)
draft5.Base = (pad6, faces_at(pad6, [(-6, 49.6, 0.875)]))
draft5.NeutralPlane = (doc.getObject("XY_Plane005"), [""])
draft5.Angle = 15
draft5.Reversed = False
doc.recompute()

boolean5 = doc.addObject("PartDesign::Boolean", "Boolean004")
body.addObject(boolean5)
boolean5.Type = "Cut"
boolean5.addObjects([body6])
body7 = doc.addObject("PartDesign::Body", "Body006")

sketch9 = doc.addObject("Sketcher::SketchObject", "Sketch008")
body7.addObject(sketch9)
sketch9.AttachmentSupport = (doc.getObject("XY_Plane006"), [""])
sketch9.MapMode = "FlatFace"
sketch9.addGeometry(Part.Circle(V(50, 0, 0), V(0, 0, 1), 6), False)
sketch9.addConstraint([
    Sketcher.Constraint("PointOnObject", 0, 3, -1),
    Sketcher.Constraint("Diameter", 0, Q("12 mm")),
    Sketcher.Constraint("DistanceX", -1, 1, 0, 3, Q("49.6 mm")),
])
pad7 = doc.addObject("PartDesign::Pad", "Pad006")
body7.addObject(pad7)
pad7.Profile = sketch9
pad7.Length = 1.75
doc.recompute()

draft6 = doc.addObject("PartDesign::Draft", "Draft005")
body7.addObject(draft6)
draft6.Base = (pad7, faces_at(pad7, [(43.6, 0, 0.875)]))
draft6.NeutralPlane = (doc.getObject("XY_Plane006"), [""])
draft6.Angle = 15
draft6.Reversed = False
doc.recompute()

boolean6 = doc.addObject("PartDesign::Boolean", "Boolean005")
body.addObject(boolean6)
boolean6.Type = "Cut"
boolean6.addObjects([body7])
body8 = doc.addObject("PartDesign::Body", "Body007")

sketch10 = doc.addObject("Sketcher::SketchObject", "Sketch009")
body8.addObject(sketch10)
sketch10.AttachmentSupport = (doc.getObject("XY_Plane007"), [""])
sketch10.MapMode = "FlatFace"
sketch10.addGeometry(Part.Circle(V(0, -50, 0), V(0, 0, 1), 6), False)
sketch10.addConstraint([
    Sketcher.Constraint("PointOnObject", 0, 3, -2),
    Sketcher.Constraint("Diameter", 0, Q("12 mm")),
    Sketcher.Constraint("DistanceY", 0, 3, -1, 1, Q("49.6 mm")),
])
pad8 = doc.addObject("PartDesign::Pad", "Pad007")
body8.addObject(pad8)
pad8.Profile = sketch10
pad8.Length = 1.75
doc.recompute()

draft7 = doc.addObject("PartDesign::Draft", "Draft006")
body8.addObject(draft7)
draft7.Base = (pad8, faces_at(pad8, [(-6, -49.6, 0.875)]))
draft7.NeutralPlane = (doc.getObject("XY_Plane007"), [""])
draft7.Angle = 15
draft7.Reversed = False
doc.recompute()

boolean7 = doc.addObject("PartDesign::Boolean", "Boolean006")
body.addObject(boolean7)
boolean7.Type = "Cut"
boolean7.addObjects([body8])
body9 = doc.addObject("PartDesign::Body", "Body008")

sketch11 = doc.addObject("Sketcher::SketchObject", "Sketch010")
body9.addObject(sketch11)
sketch11.AttachmentSupport = (doc.getObject("XY_Plane008"), [""])
sketch11.MapMode = "FlatFace"
sketch11.addGeometry(Part.Circle(V(-50, 0, 0), V(0, 0, 1), 6), False)
sketch11.addConstraint([
    Sketcher.Constraint("PointOnObject", 0, 3, -1),
    Sketcher.Constraint("Diameter", 0, Q("12 mm")),
    Sketcher.Constraint("DistanceX", 0, 3, -1, 1, Q("49.6 mm")),
])
pad9 = doc.addObject("PartDesign::Pad", "Pad008")
body9.addObject(pad9)
pad9.Profile = sketch11
pad9.Length = 1.75
doc.recompute()

draft8 = doc.addObject("PartDesign::Draft", "Draft007")
body9.addObject(draft8)
draft8.Base = (pad9, faces_at(pad9, [(-55.6, 0, 0.875)]))
draft8.NeutralPlane = (doc.getObject("XY_Plane008"), [""])
draft8.Angle = 15
draft8.Reversed = False
doc.recompute()

boolean8 = doc.addObject("PartDesign::Boolean", "Boolean007")
body.addObject(boolean8)
boolean8.Type = "Cut"
boolean8.addObjects([body9])

sketch12 = doc.addObject("Sketcher::SketchObject", "Sketch011")
body.addObject(sketch12)
sketch12.AttachmentSupport = (doc.XY_Plane, [""])
sketch12.MapMode = "FlatFace"
sketch12.addGeometry([
    Part.Circle(V(35.1, 35.1, 0), V(0, 0, 1), 3.5),
    Part.Circle(V(-35.1, -35.1, 0), V(0, 0, 1), 3.5),
], False)
sketch12.addConstraint([
    Sketcher.Constraint("Equal", 0, 1),
    Sketcher.Constraint("Symmetric", 0, 3, 1, 3, -1, 1),
    Sketcher.Constraint("Diameter", 0, Q("7 mm")),
    Sketcher.Constraint("DistanceX", -1, 1, 0, 3, Q("35.072496 mm")),
    Sketcher.Constraint("DistanceY", -1, 1, 0, 3, Q("35.072496 mm")),
])
pocket3 = doc.addObject("PartDesign::Pocket", "Pocket002")
body.addObject(pocket3)
pocket3.Profile = sketch12
pocket3.Length = 1
pocket3.Reversed = True
body10 = doc.addObject("PartDesign::Body", "Body009")

sketch13 = doc.addObject("Sketcher::SketchObject", "Sketch012")
body10.addObject(sketch13)
sketch13.AttachmentSupport = (doc.getObject("XY_Plane009"), [""])
sketch13.MapMode = "FlatFace"
sketch13.AttachmentOffset = App.Placement(V(0, 0, 3.5), App.Rotation())
sketch13.addGeometry(Part.Circle(V(-35, -35, 0), V(0, 0, 1), 6), False)
sketch13.addConstraint([
    Sketcher.Constraint("Diameter", 0, Q("12 mm")),
    Sketcher.Constraint("DistanceX", 0, 3, -1, 1, Q("35.072496 mm")),
    Sketcher.Constraint("DistanceY", 0, 3, -1, 1, Q("35.072496 mm")),
])
pad10 = doc.addObject("PartDesign::Pad", "Pad009")
body10.addObject(pad10)
pad10.Profile = sketch13
pad10.Length = 2.5
pad10.Reversed = True
doc.recompute()

datumplane5 = doc.addObject("PartDesign::Plane", "DatumPlane004")
body10.addObject(datumplane5)
datumplane5.AttachmentSupport = (doc.getObject("XY_Plane009"), [""])
datumplane5.MapMode = "FlatFace"
datumplane5.AttachmentOffset = App.Placement(V(0, 0, 3.5), App.Rotation())
draft9 = doc.addObject("PartDesign::Draft", "Draft008")
body10.addObject(draft9)
draft9.Base = (pad10, faces_at(pad10, [(-41.072, -35.072, 2.25)]))
draft9.NeutralPlane = (datumplane5, [""])
draft9.Angle = 53.5
draft9.Reversed = True
doc.recompute()

boolean9 = doc.addObject("PartDesign::Boolean", "Boolean008")
body.addObject(boolean9)
boolean9.Type = "Cut"
boolean9.addObjects([body10])
body11 = doc.addObject("PartDesign::Body", "Body010")

sketch14 = doc.addObject("Sketcher::SketchObject", "Sketch013")
body11.addObject(sketch14)
sketch14.AttachmentSupport = (doc.getObject("XY_Plane010"), [""])
sketch14.MapMode = "FlatFace"
sketch14.AttachmentOffset = App.Placement(V(0, 0, 3.5), App.Rotation())
sketch14.addGeometry(Part.Circle(V(35, 35, 0), V(0, 0, 1), 6), False)
sketch14.addConstraint([
    Sketcher.Constraint("Diameter", 0, Q("12 mm")),
    Sketcher.Constraint("DistanceX", -1, 1, 0, 3, Q("35.072496 mm")),
    Sketcher.Constraint("DistanceY", -1, 1, 0, 3, Q("35.072496 mm")),
])
pad11 = doc.addObject("PartDesign::Pad", "Pad010")
body11.addObject(pad11)
pad11.Profile = sketch14
pad11.Length = 2.5
pad11.Reversed = True
doc.recompute()

datumplane6 = doc.addObject("PartDesign::Plane", "DatumPlane005")
body11.addObject(datumplane6)
datumplane6.AttachmentSupport = (doc.getObject("XY_Plane010"), [""])
datumplane6.MapMode = "FlatFace"
datumplane6.AttachmentOffset = App.Placement(V(0, 0, 3.5), App.Rotation())
draft10 = doc.addObject("PartDesign::Draft", "Draft009")
body11.addObject(draft10)
draft10.Base = (pad11, faces_at(pad11, [(29.072, 35.072, 2.25)]))
draft10.NeutralPlane = (datumplane6, [""])
draft10.Angle = 53.5
draft10.Reversed = True
doc.recompute()

boolean10 = doc.addObject("PartDesign::Boolean", "Boolean009")
body.addObject(boolean10)
boolean10.Type = "Cut"
boolean10.addObjects([body11])

doc.recompute()
